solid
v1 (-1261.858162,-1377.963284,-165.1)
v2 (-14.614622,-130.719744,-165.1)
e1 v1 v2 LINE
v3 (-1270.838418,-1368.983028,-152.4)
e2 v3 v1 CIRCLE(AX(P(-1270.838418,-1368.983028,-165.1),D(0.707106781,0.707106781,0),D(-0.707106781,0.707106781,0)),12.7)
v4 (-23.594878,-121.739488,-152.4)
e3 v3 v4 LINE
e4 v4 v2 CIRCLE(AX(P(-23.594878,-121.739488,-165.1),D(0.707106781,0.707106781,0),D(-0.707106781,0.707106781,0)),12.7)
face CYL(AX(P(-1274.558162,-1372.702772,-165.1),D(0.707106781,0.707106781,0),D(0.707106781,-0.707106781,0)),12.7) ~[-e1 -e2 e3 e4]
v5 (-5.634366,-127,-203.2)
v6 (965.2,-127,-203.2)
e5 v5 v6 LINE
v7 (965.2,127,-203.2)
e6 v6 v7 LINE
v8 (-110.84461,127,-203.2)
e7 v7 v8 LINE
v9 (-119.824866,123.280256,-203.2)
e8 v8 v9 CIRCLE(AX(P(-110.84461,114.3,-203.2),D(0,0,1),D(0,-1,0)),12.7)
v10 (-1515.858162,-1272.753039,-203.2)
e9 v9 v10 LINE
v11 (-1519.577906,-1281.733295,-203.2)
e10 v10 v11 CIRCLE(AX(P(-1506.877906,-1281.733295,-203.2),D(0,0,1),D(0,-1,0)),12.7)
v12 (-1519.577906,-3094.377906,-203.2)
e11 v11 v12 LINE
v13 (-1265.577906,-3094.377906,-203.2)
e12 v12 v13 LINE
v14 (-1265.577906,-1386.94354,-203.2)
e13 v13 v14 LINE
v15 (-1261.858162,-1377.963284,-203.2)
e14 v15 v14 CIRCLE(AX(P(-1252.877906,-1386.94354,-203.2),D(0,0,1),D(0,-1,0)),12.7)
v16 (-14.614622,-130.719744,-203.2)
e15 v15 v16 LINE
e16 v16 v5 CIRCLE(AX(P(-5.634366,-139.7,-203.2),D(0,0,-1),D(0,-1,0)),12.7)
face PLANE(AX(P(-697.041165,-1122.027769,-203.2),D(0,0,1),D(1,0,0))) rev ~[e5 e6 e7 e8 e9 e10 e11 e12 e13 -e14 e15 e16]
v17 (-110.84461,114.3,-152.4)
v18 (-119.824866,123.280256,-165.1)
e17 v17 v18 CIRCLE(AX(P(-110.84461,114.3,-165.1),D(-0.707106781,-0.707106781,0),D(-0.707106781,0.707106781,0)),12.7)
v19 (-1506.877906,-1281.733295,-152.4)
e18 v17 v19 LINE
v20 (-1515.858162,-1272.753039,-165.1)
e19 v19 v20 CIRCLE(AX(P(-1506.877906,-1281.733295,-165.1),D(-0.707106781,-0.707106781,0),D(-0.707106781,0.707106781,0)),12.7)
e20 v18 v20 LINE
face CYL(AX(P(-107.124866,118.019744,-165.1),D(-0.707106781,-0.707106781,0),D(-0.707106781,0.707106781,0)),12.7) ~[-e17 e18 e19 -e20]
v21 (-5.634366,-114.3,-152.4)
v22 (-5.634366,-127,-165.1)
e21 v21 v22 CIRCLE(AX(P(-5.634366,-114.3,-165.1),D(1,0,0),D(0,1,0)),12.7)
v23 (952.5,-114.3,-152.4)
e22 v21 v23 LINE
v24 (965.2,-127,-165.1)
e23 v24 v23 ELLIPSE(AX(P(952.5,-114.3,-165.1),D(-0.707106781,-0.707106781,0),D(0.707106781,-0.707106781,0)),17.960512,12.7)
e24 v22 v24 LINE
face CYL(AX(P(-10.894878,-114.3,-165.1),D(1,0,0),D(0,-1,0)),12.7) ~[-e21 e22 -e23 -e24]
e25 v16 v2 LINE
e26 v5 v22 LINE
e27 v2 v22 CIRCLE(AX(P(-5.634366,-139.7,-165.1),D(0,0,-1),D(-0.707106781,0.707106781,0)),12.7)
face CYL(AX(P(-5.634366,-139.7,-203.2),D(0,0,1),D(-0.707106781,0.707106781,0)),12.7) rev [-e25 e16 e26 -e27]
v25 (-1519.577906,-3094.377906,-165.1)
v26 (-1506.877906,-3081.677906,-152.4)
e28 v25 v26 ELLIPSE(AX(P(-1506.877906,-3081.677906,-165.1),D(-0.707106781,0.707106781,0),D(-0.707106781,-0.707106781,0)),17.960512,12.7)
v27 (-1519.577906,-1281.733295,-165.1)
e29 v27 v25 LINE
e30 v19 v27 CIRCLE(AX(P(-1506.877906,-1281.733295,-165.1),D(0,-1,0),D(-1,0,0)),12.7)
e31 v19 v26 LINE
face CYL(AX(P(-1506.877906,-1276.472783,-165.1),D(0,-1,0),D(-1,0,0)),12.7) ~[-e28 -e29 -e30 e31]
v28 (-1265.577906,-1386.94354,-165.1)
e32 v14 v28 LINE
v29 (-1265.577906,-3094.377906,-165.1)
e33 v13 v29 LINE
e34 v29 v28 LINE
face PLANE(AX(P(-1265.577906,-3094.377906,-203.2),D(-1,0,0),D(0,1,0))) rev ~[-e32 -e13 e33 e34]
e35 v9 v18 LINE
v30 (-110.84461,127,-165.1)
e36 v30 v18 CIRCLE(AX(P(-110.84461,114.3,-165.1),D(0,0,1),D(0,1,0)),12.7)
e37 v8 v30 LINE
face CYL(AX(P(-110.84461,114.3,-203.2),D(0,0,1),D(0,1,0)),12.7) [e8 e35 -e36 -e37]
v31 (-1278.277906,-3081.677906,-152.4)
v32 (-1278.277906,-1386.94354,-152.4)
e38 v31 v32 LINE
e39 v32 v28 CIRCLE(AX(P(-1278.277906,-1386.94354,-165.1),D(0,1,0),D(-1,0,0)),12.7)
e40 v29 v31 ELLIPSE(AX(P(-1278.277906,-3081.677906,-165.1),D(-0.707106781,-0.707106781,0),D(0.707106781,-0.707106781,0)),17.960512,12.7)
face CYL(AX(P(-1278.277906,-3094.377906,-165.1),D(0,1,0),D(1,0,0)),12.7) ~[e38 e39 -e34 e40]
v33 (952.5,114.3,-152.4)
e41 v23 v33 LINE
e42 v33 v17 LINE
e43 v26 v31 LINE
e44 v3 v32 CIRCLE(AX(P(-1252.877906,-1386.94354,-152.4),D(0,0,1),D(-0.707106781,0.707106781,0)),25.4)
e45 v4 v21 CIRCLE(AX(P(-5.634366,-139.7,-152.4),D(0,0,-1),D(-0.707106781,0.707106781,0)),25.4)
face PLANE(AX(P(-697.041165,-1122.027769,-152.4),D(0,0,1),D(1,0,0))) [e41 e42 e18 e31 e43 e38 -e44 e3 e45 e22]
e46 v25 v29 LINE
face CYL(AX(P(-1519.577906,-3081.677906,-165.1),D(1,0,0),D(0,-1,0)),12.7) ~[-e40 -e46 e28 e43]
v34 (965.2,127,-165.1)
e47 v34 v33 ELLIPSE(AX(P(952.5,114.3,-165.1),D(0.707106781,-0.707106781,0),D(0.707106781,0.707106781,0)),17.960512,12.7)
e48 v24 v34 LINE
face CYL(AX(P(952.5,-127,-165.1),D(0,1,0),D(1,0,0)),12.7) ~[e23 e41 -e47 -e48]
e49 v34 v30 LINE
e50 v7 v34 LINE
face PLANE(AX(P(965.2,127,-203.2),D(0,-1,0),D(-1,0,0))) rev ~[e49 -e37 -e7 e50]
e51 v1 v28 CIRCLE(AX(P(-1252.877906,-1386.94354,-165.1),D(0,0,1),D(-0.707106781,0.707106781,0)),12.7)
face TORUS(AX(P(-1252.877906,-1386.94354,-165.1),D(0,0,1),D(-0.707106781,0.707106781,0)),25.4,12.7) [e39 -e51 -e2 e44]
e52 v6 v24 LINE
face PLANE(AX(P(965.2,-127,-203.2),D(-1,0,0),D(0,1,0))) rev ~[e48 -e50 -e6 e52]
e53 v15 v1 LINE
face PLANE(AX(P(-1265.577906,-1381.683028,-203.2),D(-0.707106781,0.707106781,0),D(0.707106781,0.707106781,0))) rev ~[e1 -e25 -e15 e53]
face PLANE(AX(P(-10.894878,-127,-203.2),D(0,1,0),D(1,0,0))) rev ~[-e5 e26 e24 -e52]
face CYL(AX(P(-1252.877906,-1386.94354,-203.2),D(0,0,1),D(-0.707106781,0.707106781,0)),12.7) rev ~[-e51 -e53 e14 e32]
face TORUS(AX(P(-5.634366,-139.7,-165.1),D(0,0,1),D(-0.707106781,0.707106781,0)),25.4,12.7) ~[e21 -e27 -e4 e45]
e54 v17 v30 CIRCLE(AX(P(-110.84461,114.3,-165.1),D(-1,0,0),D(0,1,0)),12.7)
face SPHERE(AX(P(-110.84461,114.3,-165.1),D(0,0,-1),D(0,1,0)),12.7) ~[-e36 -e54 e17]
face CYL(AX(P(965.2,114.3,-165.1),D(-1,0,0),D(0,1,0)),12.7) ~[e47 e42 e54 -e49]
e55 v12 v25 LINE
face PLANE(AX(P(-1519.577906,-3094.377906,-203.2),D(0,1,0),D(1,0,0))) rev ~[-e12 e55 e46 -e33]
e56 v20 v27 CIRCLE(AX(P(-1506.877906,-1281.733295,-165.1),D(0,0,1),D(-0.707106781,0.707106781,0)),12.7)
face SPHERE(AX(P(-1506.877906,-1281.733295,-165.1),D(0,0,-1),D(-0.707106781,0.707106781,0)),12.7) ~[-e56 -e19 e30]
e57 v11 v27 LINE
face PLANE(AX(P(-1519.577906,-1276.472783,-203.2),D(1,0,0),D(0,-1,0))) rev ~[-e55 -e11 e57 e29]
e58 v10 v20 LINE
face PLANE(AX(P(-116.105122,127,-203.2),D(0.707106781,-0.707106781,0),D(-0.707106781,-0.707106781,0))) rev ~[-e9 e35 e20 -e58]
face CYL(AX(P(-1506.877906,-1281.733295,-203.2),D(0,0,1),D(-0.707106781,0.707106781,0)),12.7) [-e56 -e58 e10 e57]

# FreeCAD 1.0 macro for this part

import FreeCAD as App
import Part
import Sketcher
Q = App.Units.Quantity


def edges_at(feature, points):
    """Names of the edges that pass closest to the given points."""
    edges = feature.Shape.Edges
    near = lambda p: min(range(len(edges)), key=lambda i: edges[i].distToShape(Part.Vertex(*p))[0])
    return sorted({f"Edge{near(p) + 1}" for p in points})


def add_polygon(sketch, points):
    """Adds a closed chain of lines whose ends are joined by coincident constraints."""
    first, n = sketch.GeometryCount, len(points)
    for a, b in zip(points, points[1:] + points[:1]):
        sketch.addGeometry(Part.LineSegment(App.Vector(*a, 0), App.Vector(*b, 0)), False)
    for i in range(n):
        sketch.addConstraint(Sketcher.Constraint("Coincident", first + i, 2, first + (i + 1) % n, 1))

doc = App.newDocument("Part")
body = doc.addObject("PartDesign::Body", "Body")

sketch1 = body.newObject("Sketcher::SketchObject", "Sketch")
sketch1.AttachmentSupport = (doc.getObject("XY_Plane"), [""])
sketch1.MapMode = "FlatFace"
add_polygon(sketch1, [(-1202, -1382), (53, -127), (1029, -127), (1029, 127), (-53, 127), (-1456, -1276), (-1456, -3094), (-1202, -3094)])
sketch1.addConstraint(Sketcher.Constraint("Horizontal", 1))
sketch1.addConstraint(Sketcher.Constraint("Vertical", 2))
sketch1.addConstraint(Sketcher.Constraint("Horizontal", 3))
sketch1.addConstraint(Sketcher.Constraint("Vertical", 5))
sketch1.addConstraint(Sketcher.Constraint("Horizontal", 6))
sketch1.addConstraint(Sketcher.Constraint("Vertical", 7))
sketch1.addConstraint(Sketcher.Constraint("Symmetric", 0, 2, 3, 2, -1, 1))
sketch1.addConstraint(Sketcher.Constraint("Parallel", 0, 4))
sketch1.addConstraint(Sketcher.Constraint("Equal", 6, 2))
sketch1.addConstraint(Sketcher.Constraint("DistanceX", 6, 1, 6, 2, Q("10 in")))
sketch1.addConstraint(Sketcher.Constraint("Angle", 0, Q("45 deg")))
sketch1.addConstraint(Sketcher.Constraint("DistanceX", -1, 1, 1, 2, Q("40.5 in")))
sketch1.addConstraint(Sketcher.Constraint("DistanceX", 1, 1, 1, 2, Q("976.094878 mm")))
sketch1.addConstraint(Sketcher.Constraint("DistanceY", 7, 1, 7, 2, Q("1712.694878 mm")))
sketch1.addConstraint(Sketcher.Constraint("DistanceY", 7, 2, -1, 1, Q("1381.683028 mm")))
pad1 = body.newObject("PartDesign::Pad", "Pad")
pad1.Profile = sketch1
pad1.Length = Q("2 in")
doc.recompute()

fillet = body.newObject("PartDesign::Fillet", "Fillet")
fillet.Base = (pad1, edges_at(pad1, [
    (-574.736, -754.342, 50.8),
    (540.653, -127, 50.8),
    (1028.7, 0, 50.8),
    (488.047, 127, 50.8),
    (-754.342, -574.736, 50.8),
    (-1456.078, -2185.425, 50.8),
    (-1329.078, -3094.378, 50.8),
    (-1202.078, -2238.03, 50.8),
    (-1456.078, -1276.473, 25.4),
    (-52.605, 127, 25.4),
    (52.605, -127, 25.4),
    (-1202.078, -1381.683, 25.4),
]))
fillet.Radius = Q("0.5 in")
body2 = doc.addObject("PartDesign::Body", "Body001")
doc.recompute()

body.Placement = App.Placement(App.Vector(-63.5, 0, -203.2), App.Rotation(App.Vector(0, 0, 1), 0))
boolean = body2.newObject("PartDesign::Boolean", "Boolean")
boolean.Type = "Fuse"
boolean.addObjects([body])

doc.recompute()
